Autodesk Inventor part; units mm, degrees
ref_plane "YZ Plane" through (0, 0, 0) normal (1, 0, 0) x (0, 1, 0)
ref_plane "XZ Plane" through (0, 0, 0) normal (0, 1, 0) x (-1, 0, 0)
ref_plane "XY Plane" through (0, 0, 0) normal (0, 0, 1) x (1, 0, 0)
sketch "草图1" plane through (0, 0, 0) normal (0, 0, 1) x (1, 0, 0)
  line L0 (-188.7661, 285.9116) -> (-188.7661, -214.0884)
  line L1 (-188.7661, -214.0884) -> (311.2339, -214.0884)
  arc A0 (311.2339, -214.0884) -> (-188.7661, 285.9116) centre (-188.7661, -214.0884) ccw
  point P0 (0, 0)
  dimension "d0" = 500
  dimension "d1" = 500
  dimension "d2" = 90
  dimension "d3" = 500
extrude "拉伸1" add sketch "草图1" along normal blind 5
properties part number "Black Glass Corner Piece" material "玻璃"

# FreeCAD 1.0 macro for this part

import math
import FreeCAD as App
import Part
import Sketcher
from FreeCAD import Vector

doc = App.newDocument("Part")
body = doc.addObject("PartDesign::Body", "Body")

sketch1 = body.newObject("Sketcher::SketchObject", "Sketch")
sketch1.AttachmentSupport = (doc.getObject("XY_Plane"), [""])
sketch1.MapMode = "FlatFace"
sketch1.addGeometry([
    Part.ArcOfCircle(Part.Circle(Vector(-189, -214, 0), Vector(0, 0, 1), 500), math.radians(0), math.radians(90)),
    Part.LineSegment(Vector(-189, 286, 0), Vector(-189, -214, 0)),
    Part.LineSegment(Vector(-189, -214, 0), Vector(311, -214, 0)),
], False)
sketch1.addConstraint([
    Sketcher.Constraint("Coincident", 0, 2, 1, 1),
    Sketcher.Constraint("Coincident", 1, 2, 2, 1),
    Sketcher.Constraint("Coincident", 2, 2, 0, 1),
    Sketcher.Constraint("Vertical", 1),
    Sketcher.Constraint("Horizontal", 2),
    Sketcher.Constraint("Coincident", 1, 2, 0, 3),
    Sketcher.Constraint("Radius", 0, 500.0),
    Sketcher.Constraint("DistanceX", 0, 3, -1, 1, 188.766),
    Sketcher.Constraint("DistanceY", 0, 3, -1, 1, 214.0884),
])
pad1 = body.newObject("PartDesign::Pad", "Pad")
pad1.Profile = sketch1
pad1.Length = 5

doc.recompute()
